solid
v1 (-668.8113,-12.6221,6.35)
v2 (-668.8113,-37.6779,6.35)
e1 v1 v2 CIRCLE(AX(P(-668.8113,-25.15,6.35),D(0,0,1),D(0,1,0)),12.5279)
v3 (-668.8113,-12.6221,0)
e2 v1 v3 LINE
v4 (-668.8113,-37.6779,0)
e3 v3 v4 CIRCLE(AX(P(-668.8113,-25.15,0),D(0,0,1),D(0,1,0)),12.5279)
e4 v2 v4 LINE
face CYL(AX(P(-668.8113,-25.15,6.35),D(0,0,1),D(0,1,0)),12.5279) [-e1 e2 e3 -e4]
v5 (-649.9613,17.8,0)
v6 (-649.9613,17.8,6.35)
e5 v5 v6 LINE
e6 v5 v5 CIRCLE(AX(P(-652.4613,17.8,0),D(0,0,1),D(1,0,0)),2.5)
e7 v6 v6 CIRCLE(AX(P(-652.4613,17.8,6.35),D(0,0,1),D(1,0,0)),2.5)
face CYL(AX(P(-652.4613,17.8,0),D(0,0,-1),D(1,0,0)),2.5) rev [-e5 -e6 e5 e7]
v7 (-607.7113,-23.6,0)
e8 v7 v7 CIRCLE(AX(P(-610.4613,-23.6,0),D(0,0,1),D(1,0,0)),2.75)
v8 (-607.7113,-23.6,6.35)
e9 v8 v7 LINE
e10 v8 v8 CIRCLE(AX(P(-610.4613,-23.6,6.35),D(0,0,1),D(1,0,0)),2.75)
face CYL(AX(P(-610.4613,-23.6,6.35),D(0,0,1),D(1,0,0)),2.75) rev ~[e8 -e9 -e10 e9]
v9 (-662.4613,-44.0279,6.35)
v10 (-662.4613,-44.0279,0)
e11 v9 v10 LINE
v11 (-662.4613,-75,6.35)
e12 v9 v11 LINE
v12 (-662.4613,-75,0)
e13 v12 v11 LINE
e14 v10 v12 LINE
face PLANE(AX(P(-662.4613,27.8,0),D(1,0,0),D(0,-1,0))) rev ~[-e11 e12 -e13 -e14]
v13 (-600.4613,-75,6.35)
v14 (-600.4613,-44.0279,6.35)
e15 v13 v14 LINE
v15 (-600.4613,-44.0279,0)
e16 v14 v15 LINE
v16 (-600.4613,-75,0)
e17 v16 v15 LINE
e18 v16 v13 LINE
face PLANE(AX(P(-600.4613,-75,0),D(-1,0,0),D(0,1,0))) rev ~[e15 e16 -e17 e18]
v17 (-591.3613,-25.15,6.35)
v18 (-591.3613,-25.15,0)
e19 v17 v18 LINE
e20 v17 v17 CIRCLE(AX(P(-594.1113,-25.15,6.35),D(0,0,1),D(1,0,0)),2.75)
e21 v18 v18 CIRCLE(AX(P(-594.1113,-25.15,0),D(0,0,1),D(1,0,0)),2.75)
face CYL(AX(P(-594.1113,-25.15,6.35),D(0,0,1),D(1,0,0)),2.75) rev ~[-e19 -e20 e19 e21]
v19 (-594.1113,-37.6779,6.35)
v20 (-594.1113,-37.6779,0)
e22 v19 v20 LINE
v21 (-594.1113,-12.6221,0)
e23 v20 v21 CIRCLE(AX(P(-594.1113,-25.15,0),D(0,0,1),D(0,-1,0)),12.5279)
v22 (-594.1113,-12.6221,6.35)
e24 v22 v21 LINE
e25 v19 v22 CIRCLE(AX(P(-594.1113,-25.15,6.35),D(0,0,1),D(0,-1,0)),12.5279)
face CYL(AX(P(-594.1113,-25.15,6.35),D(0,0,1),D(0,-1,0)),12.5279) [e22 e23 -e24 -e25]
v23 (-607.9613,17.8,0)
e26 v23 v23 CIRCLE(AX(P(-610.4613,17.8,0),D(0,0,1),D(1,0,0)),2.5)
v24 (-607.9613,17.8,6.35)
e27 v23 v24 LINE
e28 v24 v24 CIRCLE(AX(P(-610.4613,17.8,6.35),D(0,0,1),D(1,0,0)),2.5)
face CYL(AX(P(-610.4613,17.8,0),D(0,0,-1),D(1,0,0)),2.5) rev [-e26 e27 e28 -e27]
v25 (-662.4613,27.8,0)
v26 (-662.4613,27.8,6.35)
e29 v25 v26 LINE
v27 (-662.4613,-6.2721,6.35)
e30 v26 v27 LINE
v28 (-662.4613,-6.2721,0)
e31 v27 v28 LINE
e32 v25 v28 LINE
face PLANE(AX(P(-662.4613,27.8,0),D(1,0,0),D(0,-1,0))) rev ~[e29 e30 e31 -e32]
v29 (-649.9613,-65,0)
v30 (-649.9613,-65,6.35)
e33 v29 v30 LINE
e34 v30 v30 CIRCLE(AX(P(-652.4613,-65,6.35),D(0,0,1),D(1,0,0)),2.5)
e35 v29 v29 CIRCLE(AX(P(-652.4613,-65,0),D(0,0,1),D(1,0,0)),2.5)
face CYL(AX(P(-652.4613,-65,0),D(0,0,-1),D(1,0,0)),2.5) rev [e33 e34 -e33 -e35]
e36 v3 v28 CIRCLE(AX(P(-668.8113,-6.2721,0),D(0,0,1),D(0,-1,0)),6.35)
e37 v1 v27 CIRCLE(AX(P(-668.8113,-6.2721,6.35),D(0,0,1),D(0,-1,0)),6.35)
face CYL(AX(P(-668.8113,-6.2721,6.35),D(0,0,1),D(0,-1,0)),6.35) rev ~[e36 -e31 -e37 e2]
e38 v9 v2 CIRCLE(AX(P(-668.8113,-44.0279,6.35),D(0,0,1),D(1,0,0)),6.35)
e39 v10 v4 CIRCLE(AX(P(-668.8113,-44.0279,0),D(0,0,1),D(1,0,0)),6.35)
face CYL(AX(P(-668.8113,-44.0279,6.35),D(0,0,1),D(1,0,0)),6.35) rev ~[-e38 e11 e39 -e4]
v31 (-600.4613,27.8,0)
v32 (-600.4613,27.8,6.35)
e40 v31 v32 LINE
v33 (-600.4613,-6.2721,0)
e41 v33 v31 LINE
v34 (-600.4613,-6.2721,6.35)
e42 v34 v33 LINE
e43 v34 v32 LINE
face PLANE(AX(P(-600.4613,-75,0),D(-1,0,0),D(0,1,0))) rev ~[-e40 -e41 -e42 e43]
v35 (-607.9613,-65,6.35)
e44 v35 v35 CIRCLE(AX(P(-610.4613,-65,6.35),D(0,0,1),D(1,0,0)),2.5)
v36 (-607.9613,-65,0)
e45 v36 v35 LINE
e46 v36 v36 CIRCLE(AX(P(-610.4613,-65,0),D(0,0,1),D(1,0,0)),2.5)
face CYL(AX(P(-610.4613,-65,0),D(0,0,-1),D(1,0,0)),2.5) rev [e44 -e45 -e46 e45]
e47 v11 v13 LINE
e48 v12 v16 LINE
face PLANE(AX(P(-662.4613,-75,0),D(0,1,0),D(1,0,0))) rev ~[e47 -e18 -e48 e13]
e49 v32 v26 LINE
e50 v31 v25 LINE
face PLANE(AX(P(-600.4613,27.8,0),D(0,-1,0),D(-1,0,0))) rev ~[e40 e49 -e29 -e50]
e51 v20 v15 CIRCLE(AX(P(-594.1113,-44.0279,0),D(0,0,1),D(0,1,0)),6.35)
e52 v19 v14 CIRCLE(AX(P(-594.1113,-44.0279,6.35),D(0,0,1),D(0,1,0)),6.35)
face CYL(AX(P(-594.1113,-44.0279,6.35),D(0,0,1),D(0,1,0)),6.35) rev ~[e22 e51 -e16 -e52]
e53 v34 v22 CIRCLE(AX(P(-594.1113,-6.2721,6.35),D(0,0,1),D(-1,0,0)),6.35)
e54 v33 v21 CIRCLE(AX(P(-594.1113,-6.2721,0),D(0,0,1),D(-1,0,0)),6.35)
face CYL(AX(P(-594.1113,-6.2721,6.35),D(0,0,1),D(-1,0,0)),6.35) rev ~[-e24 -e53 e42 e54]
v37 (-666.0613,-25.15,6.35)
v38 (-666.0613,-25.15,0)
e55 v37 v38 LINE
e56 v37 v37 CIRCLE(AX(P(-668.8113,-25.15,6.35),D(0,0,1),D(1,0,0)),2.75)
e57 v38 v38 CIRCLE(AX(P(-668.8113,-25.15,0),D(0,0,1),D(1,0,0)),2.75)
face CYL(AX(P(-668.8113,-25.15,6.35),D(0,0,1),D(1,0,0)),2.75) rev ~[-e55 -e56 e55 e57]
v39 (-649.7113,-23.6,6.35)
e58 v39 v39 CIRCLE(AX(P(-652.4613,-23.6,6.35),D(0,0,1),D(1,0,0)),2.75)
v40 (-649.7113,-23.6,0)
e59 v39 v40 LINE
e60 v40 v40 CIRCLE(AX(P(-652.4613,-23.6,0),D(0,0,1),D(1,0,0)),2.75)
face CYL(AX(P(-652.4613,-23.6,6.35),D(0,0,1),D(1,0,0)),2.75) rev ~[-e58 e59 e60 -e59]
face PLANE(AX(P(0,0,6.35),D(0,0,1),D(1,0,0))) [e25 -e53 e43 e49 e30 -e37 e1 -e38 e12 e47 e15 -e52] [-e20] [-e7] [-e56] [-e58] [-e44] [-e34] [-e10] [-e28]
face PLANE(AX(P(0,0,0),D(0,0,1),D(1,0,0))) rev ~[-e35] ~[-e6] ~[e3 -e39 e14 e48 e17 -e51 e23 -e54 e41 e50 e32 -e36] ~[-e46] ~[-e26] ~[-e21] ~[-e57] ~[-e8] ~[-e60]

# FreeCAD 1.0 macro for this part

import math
import FreeCAD as App
import Part
import Sketcher
from FreeCAD import Vector
Q = App.Units.Quantity


def add_polygon(sketch, points):
    """Adds a closed chain of lines whose ends are joined by coincident constraints."""
    first, n = sketch.GeometryCount, len(points)
    for a, b in zip(points, points[1:] + points[:1]):
        sketch.addGeometry(Part.LineSegment(App.Vector(*a, 0), App.Vector(*b, 0)), False)
    for i in range(n):
        sketch.addConstraint(Sketcher.Constraint("Coincident", first + i, 2, first + (i + 1) % n, 1))

doc = App.newDocument("Part")
body = doc.addObject("PartDesign::Body", "Body")

sketch1 = body.newObject("Sketcher::SketchObject", "Sketch")
sketch1.AttachmentSupport = (doc.getObject("XY_Plane"), [""])
sketch1.MapMode = "FlatFace"
add_polygon(sketch1, [(-662.5, 27.8), (-662.5, -75), (-600.5, -75), (-600.5, 27.8)])
sketch1.addGeometry(Part.Circle(Vector(-652.5, -65, 0), Vector(0, 0, 1), 2.5), False)
sketch1.addGeometry(Part.Circle(Vector(-610.5, -65, 0), Vector(0, 0, 1), 2.5), False)
sketch1.addGeometry(Part.Circle(Vector(-652.5, 17.8, 0), Vector(0, 0, 1), 2.5), False)
sketch1.addGeometry(Part.Circle(Vector(-610.5, 17.8, 0), Vector(0, 0, 1), 2.5), False)
sketch1.addConstraint([
    Sketcher.Constraint("Vertical", 0),
    Sketcher.Constraint("Horizontal", 1),
    Sketcher.Constraint("Vertical", 2),
    Sketcher.Constraint("Horizontal", 3),
    Sketcher.Constraint("Equal", 4, 5),
    Sketcher.Constraint("Equal", 5, 6),
    Sketcher.Constraint("Equal", 6, 7),
    Sketcher.Constraint("Horizontal", 4, 3, 5, 3),
    Sketcher.Constraint("Horizontal", 6, 3, 7, 3),
    Sketcher.Constraint("Vertical", 4, 3, 6, 3),
    Sketcher.Constraint("Vertical", 5, 3, 7, 3),
    Sketcher.Constraint("Diameter", 4, Q("5 mm")),
    Sketcher.Constraint("DistanceX", 0, 2, 4, 3, Q("10 mm")),
    Sketcher.Constraint("DistanceY", 0, 2, 4, 3, Q("10 mm")),
    Sketcher.Constraint("DistanceX", 5, 3, 1, 2, Q("10 mm")),
    Sketcher.Constraint("DistanceY", 7, 3, 2, 2, Q("10 mm")),
    Sketcher.Constraint("DistanceX", 1, 1, 1, 2, Q("62 mm")),
    Sketcher.Constraint("DistanceY", 0, 2, 0, 1, Q("102.8 mm")),
    Sketcher.Constraint("DistanceY", 4, 3, -1, 1, Q("65 mm")),
    Sketcher.Constraint("DistanceX", 4, 3, -1, 1, Q("652.4613 mm")),
])
pad1 = body.newObject("PartDesign::Pad", "Pad")
pad1.Profile = sketch1
pad1.Length = 6.35

sketch2 = body.newObject("Sketcher::SketchObject", "Sketch001")
sketch2.AttachmentSupport = (doc.getObject("XY_Plane"), [""])
sketch2.MapMode = "FlatFace"
sketch2.AttachmentOffset = App.Placement(Vector(0, 0, 6.35), App.Rotation())
sketch2.addGeometry([
    Part.Circle(Vector(-610.5, -23.6, 0), Vector(0, 0, 1), 2.8),
    Part.Circle(Vector(-652.5, -23.6, 0), Vector(0, 0, 1), 2.8),
], False)
sketch2.addConstraint([
    Sketcher.Constraint("Equal", 0, 1),
    Sketcher.Constraint("Horizontal", 0, 3, 1, 3),
    Sketcher.Constraint("Diameter", 0, Q("5.5 mm")),
    Sketcher.Constraint("DistanceX", 1, 3, 0, 3, Q("42 mm")),
    Sketcher.Constraint("DistanceY", 0, 3, -1, 1, Q("23.6 mm")),
    Sketcher.Constraint("DistanceX", 0, 3, -1, 1, Q("610.4613 mm")),
])
pocket1 = body.newObject("PartDesign::Pocket", "Pocket")
pocket1.Profile = sketch2
pocket1.Length = 25.4

sketch3 = body.newObject("Sketcher::SketchObject", "Sketch002")
sketch3.AttachmentSupport = (doc.getObject("XY_Plane"), [""])
sketch3.MapMode = "FlatFace"
sketch3.AttachmentOffset = App.Placement(Vector(0, 0, 6.35), App.Rotation())
sketch3.addGeometry([
    Part.ArcOfCircle(Part.Circle(Vector(-668.8, -6.3, 0), Vector(0, 0, 1), 6.3), math.radians(-90), math.radians(0)),
    Part.ArcOfCircle(Part.Circle(Vector(-668.8, -25.1, 0), Vector(0, 0, 1), 12.5), math.radians(90), math.radians(270)),
    Part.ArcOfCircle(Part.Circle(Vector(-668.8, -44, 0), Vector(0, 0, 1), 6.3), math.radians(0), math.radians(90)),
    Part.LineSegment(Vector(-662.5, -44, 0), Vector(-662.5, -6.3, 0)),
    Part.Circle(Vector(-668.8, -25.1, 0), Vector(0, 0, 1), 2.8),
    Part.LineSegment(Vector(-600.5, -6.3, 0), Vector(-600.5, -44, 0)),
    Part.ArcOfCircle(Part.Circle(Vector(-594.1, -44, 0), Vector(0, 0, 1), 6.4), math.radians(90), math.radians(180)),
    Part.ArcOfCircle(Part.Circle(Vector(-594.1, -25.1, 0), Vector(0, 0, 1), 12.5), math.radians(-90), math.radians(90)),
    Part.ArcOfCircle(Part.Circle(Vector(-594.1, -6.3, 0), Vector(0, 0, 1), 6.4), math.radians(180), math.radians(270)),
    Part.Circle(Vector(-594.1, -25.1, 0), Vector(0, 0, 1), 2.8),
], False)
sketch3.addConstraint([
    Sketcher.Constraint("Tangent", 0, 1, 1, 1),
    Sketcher.Constraint("Tangent", 1, 2, 2, 2),
    Sketcher.Constraint("Tangent", 2, 1, 3, 1),
    Sketcher.Constraint("Tangent", 3, 2, 0, 2),
    Sketcher.Constraint("Tangent", 5, 2, 6, 2),
    Sketcher.Constraint("Tangent", 6, 1, 7, 1),
    Sketcher.Constraint("Tangent", 7, 2, 8, 2),
    Sketcher.Constraint("Tangent", 8, 1, 5, 1),
    Sketcher.Constraint("Vertical", 3),
    Sketcher.Constraint("Vertical", 5),
    Sketcher.Constraint("Coincident", 4, 3, 1, 3),
    Sketcher.Constraint("Coincident", 9, 3, 7, 3),
    Sketcher.Constraint("Equal", 0, 2),
    Sketcher.Constraint("Equal", 2, 6),
    Sketcher.Constraint("Equal", 1, 7),
    Sketcher.Constraint("Equal", 6, 8),
    Sketcher.Constraint("Equal", 4, 9),
    Sketcher.Constraint("Horizontal", 2, 3, 6, 3),
    Sketcher.Constraint("Vertical", 0, 3, 1, 3),
    Sketcher.Constraint("Vertical", 6, 3, 7, 3),
    Sketcher.Constraint("Radius", 0, Q("6.35 mm")),
    Sketcher.Constraint("Diameter", 4, Q("5.5 mm")),
    Sketcher.Constraint("Radius", 1, Q("12.528 mm")),
    Sketcher.Constraint("DistanceX", 2, 1, 5, 2, Q("62 mm")),
    Sketcher.Constraint("DistanceY", 1, 3, -1, 1, Q("25.15 mm")),
    Sketcher.Constraint("DistanceX", 0, 3, -1, 1, Q("668.8113 mm")),
])
pad2 = body.newObject("PartDesign::Pad", "Pad001")
pad2.Profile = sketch3
pad2.Length = 6.35
pad2.Reversed = True

doc.recompute()
